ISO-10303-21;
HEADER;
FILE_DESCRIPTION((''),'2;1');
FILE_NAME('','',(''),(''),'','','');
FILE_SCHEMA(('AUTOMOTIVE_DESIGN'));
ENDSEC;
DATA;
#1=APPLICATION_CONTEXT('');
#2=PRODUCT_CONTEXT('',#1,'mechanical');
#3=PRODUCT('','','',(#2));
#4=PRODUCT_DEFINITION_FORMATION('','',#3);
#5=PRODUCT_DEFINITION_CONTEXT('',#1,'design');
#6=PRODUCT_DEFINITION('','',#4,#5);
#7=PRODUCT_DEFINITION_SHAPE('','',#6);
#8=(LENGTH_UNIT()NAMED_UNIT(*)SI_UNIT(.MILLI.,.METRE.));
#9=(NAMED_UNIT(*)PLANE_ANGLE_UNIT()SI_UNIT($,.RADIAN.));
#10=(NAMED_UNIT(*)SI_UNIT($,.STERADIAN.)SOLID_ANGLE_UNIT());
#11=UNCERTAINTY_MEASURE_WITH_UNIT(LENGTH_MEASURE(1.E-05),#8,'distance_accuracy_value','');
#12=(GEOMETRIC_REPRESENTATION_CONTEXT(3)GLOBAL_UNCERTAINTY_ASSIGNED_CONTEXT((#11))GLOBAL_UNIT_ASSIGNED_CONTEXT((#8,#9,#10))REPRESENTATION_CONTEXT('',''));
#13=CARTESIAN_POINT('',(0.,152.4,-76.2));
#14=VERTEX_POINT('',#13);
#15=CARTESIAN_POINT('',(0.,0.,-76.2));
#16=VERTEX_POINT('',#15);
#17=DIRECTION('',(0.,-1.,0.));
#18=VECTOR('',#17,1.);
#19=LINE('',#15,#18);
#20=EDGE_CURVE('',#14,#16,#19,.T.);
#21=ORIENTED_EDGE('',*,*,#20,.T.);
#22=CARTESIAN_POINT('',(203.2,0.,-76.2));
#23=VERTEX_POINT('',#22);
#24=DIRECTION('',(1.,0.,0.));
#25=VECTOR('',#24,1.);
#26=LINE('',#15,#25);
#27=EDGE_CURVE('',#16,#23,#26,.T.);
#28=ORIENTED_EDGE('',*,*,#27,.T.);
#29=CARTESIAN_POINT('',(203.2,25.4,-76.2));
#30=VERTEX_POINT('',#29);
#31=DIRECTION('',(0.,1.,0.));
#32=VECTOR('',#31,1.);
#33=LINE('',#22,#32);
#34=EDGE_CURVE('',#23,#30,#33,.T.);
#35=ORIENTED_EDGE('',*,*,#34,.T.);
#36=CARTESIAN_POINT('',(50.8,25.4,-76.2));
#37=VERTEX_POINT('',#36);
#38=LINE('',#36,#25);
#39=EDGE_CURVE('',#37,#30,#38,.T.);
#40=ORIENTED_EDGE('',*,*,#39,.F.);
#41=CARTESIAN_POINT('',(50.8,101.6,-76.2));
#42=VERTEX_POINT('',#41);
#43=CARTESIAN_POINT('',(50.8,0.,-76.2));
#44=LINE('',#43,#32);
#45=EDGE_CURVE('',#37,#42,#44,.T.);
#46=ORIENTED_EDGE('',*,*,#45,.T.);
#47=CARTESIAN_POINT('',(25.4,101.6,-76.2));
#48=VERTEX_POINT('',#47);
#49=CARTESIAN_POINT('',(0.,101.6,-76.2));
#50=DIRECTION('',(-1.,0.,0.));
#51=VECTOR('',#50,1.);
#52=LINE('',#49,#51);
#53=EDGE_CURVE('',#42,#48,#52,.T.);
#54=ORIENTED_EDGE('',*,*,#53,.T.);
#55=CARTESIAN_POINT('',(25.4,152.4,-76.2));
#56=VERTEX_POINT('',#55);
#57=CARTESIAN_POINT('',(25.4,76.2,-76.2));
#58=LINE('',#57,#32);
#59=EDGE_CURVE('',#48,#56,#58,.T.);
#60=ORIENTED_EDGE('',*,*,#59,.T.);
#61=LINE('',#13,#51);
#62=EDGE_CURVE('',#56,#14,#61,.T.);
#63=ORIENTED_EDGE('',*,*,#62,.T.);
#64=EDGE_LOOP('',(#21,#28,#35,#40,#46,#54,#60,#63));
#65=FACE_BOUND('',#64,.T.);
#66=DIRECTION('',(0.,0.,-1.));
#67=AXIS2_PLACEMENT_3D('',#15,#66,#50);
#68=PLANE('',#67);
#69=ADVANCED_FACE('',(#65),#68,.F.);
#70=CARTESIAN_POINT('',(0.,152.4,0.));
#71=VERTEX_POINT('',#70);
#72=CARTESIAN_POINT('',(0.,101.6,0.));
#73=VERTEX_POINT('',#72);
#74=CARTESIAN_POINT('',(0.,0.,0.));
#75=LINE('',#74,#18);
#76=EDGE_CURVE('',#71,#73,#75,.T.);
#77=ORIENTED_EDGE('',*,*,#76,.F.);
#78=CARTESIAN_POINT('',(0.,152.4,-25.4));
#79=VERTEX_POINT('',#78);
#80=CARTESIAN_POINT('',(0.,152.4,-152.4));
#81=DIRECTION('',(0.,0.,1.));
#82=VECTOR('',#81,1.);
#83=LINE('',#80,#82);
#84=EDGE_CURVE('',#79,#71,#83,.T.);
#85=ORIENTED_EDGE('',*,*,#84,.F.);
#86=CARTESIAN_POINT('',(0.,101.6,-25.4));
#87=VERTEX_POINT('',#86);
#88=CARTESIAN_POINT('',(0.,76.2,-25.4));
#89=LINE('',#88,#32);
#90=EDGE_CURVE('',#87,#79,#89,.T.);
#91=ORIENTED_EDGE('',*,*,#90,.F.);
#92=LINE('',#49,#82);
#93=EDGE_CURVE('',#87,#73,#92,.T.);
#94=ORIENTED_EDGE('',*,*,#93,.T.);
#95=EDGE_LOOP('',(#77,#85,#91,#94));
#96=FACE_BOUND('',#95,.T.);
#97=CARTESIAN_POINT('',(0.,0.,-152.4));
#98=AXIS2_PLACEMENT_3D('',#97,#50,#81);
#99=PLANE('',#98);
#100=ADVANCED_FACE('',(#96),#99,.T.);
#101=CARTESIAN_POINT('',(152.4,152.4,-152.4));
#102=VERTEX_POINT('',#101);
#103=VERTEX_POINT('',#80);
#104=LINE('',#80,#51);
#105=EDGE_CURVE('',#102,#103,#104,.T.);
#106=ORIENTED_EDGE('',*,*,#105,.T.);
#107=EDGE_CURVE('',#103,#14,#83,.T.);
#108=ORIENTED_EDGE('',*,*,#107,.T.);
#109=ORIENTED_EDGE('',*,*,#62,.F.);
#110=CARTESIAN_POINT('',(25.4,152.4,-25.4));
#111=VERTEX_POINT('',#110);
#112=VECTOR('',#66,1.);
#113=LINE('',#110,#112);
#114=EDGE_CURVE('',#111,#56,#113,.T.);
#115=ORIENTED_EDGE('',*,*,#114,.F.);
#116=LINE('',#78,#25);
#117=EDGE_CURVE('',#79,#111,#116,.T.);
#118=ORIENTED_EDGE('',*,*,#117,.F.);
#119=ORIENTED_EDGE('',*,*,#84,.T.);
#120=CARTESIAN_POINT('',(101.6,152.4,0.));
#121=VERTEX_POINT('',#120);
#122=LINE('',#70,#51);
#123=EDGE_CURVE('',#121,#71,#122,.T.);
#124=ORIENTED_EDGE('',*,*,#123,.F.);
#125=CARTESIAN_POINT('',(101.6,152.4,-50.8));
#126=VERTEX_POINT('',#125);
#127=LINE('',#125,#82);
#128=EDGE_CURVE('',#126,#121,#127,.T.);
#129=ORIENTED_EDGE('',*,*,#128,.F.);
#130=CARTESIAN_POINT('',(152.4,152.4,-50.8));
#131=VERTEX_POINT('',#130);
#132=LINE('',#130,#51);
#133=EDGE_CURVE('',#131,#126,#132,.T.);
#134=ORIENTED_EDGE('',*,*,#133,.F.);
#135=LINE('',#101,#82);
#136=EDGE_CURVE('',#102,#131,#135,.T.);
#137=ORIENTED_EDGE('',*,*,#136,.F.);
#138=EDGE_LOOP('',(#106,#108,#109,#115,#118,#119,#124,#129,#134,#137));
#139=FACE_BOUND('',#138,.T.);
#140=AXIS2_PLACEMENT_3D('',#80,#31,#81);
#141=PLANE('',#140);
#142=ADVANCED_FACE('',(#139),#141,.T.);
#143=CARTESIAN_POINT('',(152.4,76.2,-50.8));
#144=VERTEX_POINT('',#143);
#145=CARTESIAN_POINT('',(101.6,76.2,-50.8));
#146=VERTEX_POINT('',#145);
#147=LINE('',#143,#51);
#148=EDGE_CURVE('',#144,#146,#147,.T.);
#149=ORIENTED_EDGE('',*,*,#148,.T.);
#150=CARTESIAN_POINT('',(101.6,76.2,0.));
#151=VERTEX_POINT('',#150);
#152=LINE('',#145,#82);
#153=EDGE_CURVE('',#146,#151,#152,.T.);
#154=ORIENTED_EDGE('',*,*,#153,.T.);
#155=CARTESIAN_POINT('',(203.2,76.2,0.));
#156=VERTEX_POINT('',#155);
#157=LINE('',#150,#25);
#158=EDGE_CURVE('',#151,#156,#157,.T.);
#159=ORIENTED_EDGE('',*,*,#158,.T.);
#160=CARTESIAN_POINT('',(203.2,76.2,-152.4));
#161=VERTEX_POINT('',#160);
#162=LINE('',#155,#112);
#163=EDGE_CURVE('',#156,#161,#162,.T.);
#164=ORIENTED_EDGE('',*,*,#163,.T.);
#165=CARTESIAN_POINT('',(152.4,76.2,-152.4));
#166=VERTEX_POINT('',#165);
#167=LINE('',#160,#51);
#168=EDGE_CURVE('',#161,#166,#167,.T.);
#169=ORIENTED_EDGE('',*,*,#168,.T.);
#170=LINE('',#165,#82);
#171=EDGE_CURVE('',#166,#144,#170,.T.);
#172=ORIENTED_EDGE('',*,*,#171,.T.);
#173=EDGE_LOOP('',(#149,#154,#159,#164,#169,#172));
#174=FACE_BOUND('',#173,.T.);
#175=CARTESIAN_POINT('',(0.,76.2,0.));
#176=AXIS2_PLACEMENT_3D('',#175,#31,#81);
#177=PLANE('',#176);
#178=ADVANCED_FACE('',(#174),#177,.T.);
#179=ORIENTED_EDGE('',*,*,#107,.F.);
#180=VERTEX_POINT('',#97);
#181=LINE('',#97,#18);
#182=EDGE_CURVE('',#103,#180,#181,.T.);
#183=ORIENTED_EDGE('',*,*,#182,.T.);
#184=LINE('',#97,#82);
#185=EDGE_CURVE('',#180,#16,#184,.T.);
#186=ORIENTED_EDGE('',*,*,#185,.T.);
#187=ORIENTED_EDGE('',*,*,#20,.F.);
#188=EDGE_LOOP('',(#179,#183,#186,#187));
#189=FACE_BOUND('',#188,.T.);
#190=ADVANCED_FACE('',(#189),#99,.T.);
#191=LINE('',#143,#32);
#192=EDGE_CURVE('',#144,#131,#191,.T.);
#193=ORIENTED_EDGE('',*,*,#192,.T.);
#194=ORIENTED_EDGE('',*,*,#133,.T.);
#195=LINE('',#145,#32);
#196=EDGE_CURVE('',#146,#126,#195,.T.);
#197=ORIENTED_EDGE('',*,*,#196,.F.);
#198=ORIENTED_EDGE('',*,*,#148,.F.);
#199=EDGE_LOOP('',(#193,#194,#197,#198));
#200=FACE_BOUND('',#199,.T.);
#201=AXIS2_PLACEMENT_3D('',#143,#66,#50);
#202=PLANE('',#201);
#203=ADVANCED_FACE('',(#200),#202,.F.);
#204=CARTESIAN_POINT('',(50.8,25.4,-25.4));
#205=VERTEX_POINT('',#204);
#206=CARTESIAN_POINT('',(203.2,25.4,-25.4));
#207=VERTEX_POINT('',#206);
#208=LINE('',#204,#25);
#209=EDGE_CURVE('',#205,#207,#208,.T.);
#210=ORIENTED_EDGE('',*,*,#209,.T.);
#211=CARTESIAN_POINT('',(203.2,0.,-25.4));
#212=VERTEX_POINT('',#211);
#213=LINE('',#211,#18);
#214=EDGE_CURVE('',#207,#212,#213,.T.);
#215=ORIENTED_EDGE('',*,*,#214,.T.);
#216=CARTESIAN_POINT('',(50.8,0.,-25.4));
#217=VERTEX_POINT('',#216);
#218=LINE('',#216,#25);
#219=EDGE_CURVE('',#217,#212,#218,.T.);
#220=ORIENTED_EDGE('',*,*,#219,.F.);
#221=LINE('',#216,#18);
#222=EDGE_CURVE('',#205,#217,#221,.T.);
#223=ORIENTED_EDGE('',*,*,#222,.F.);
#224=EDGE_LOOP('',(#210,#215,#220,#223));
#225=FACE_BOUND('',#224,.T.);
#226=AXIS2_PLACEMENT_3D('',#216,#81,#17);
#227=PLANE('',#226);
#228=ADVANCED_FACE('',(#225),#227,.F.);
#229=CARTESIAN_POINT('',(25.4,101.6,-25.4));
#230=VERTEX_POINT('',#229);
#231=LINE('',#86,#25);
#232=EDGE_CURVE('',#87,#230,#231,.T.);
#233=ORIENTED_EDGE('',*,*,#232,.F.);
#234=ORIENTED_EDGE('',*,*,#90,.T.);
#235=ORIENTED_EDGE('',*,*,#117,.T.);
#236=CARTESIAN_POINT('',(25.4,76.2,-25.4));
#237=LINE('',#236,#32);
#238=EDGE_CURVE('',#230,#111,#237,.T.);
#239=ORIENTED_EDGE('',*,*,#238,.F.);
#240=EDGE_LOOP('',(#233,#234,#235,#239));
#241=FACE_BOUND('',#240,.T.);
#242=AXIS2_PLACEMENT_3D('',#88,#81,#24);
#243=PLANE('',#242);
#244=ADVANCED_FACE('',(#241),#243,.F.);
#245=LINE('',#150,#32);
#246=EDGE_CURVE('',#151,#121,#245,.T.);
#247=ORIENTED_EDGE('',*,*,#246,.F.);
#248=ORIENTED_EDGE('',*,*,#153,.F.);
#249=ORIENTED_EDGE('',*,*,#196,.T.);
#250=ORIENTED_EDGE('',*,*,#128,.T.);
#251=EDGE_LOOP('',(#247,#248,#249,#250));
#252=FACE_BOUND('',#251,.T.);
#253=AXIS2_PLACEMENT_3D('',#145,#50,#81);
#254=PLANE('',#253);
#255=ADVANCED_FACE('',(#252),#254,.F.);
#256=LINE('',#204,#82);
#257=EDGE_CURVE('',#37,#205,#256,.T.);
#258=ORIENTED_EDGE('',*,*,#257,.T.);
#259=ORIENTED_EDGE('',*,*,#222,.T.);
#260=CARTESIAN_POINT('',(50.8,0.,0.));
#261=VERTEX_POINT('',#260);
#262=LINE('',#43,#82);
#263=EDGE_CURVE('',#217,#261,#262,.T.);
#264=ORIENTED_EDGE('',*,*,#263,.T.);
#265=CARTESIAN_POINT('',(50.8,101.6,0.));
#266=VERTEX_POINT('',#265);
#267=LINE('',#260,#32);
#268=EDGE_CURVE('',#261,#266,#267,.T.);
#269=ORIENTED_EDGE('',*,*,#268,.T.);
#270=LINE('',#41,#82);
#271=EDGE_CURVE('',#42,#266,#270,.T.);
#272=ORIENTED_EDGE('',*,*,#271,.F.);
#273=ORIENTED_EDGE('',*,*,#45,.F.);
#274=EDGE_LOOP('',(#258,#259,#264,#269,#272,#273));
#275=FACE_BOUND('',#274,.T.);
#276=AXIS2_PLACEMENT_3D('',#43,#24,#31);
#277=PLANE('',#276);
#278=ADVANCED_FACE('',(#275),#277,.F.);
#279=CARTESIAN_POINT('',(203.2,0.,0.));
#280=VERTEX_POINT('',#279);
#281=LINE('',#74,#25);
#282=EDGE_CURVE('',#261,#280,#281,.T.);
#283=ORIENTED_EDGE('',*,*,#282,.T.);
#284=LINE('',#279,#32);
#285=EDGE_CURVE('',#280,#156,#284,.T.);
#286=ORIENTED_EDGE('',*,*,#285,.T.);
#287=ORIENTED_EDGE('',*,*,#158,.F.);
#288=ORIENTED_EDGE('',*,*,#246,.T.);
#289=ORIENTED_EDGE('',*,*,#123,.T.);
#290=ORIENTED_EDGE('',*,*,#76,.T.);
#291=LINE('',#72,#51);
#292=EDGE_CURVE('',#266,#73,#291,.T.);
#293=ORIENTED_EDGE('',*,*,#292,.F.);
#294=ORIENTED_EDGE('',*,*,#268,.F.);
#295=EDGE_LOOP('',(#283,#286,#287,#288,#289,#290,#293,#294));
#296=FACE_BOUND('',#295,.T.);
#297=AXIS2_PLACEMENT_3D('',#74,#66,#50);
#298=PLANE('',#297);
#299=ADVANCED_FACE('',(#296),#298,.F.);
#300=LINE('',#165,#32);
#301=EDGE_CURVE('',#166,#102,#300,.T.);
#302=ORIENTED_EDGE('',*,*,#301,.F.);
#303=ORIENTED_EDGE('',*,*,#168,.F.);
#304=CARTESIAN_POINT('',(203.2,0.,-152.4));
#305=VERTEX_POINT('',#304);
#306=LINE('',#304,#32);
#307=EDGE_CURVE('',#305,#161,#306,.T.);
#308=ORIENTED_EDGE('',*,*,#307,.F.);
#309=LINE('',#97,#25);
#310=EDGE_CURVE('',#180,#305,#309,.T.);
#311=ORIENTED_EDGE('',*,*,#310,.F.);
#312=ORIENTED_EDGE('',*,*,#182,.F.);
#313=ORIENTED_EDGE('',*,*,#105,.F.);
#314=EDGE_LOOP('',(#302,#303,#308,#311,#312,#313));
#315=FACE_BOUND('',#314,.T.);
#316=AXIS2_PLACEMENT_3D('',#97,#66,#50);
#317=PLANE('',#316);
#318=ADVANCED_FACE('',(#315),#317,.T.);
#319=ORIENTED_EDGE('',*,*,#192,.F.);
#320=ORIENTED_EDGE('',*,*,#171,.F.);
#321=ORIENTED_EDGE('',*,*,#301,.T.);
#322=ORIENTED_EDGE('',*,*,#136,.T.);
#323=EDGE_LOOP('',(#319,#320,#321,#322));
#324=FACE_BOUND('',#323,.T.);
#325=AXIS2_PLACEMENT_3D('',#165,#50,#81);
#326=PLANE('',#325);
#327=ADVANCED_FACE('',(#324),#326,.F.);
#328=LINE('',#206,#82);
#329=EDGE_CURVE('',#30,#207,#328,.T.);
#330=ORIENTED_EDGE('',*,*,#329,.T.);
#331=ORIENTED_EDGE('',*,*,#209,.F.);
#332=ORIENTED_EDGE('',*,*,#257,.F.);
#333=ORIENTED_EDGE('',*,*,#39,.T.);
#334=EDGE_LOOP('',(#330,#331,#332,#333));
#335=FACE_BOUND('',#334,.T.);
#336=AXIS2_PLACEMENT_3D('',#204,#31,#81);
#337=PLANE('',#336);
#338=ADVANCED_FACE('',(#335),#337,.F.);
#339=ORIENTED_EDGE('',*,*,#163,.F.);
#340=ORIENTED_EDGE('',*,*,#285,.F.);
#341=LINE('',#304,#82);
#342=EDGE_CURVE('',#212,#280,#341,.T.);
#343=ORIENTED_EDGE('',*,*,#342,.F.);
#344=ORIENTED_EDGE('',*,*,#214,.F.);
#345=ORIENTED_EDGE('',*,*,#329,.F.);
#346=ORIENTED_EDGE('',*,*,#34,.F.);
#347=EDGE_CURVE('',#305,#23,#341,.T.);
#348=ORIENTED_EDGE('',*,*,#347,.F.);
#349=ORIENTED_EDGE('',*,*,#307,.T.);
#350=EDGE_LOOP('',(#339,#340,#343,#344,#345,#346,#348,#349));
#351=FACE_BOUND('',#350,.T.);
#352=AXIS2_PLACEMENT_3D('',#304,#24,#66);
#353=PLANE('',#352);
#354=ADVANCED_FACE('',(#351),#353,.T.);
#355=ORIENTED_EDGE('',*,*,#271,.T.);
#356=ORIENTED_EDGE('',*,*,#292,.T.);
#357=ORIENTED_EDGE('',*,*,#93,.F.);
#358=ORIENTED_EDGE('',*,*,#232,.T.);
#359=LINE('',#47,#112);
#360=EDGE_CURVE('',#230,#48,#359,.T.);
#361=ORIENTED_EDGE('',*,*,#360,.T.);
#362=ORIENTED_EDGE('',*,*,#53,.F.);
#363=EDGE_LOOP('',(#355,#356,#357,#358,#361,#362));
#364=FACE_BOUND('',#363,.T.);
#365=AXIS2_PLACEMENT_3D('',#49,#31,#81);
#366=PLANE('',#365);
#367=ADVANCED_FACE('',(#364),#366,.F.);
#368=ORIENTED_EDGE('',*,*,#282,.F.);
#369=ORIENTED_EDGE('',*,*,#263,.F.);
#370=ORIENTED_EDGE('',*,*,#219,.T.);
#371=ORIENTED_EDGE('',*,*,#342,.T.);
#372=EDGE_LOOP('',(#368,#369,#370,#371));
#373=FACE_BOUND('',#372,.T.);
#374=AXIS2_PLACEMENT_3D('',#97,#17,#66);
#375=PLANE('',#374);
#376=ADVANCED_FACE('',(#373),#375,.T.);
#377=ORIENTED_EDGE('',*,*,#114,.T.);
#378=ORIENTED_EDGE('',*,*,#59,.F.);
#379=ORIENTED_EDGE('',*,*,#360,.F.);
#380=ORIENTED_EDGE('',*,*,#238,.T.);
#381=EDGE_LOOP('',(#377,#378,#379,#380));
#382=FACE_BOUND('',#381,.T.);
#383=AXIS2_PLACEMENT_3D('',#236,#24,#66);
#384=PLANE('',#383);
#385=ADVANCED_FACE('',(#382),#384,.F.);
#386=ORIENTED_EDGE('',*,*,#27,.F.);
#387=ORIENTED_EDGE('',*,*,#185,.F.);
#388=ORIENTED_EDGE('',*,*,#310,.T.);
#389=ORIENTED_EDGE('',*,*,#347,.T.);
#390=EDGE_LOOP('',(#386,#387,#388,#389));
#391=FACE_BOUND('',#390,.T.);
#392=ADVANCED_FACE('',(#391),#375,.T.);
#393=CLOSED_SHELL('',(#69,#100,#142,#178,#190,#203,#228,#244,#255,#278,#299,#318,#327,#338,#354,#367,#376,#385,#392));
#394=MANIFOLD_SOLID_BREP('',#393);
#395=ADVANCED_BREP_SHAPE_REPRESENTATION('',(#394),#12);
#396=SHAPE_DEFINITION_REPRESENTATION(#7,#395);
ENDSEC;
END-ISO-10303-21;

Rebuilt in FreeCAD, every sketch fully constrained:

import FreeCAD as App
import Part
import Sketcher
Q = App.Units.Quantity


def add_polygon(sketch, points):
    """Adds a closed chain of lines whose ends are joined by coincident constraints."""
    first, n = sketch.GeometryCount, len(points)
    for a, b in zip(points, points[1:] + points[:1]):
        sketch.addGeometry(Part.LineSegment(App.Vector(*a, 0), App.Vector(*b, 0)), False)
    for i in range(n):
        sketch.addConstraint(Sketcher.Constraint("Coincident", first + i, 2, first + (i + 1) % n, 1))

doc = App.newDocument("Part")
body = doc.addObject("PartDesign::Body", "Body")

sketch1 = body.newObject("Sketcher::SketchObject", "Sketch")
sketch1.AttachmentSupport = (doc.getObject("XY_Plane"), [""])
sketch1.MapMode = "FlatFace"
add_polygon(sketch1, [(0, 152.4), (0, 0), (203.2, 0), (203.2, 152.4)])
sketch1.addConstraint(Sketcher.Constraint("Vertical", 0))
sketch1.addConstraint(Sketcher.Constraint("Horizontal", 1))
sketch1.addConstraint(Sketcher.Constraint("Vertical", 2))
sketch1.addConstraint(Sketcher.Constraint("Horizontal", 3))
sketch1.addConstraint(Sketcher.Constraint("Coincident", 0, 2, -1, 1))
sketch1.addConstraint(Sketcher.Constraint("DistanceX", 1, 1, 1, 2, Q("8 in")))
sketch1.addConstraint(Sketcher.Constraint("DistanceY", 0, 2, 0, 1, Q("6 in")))
pad1 = body.newObject("PartDesign::Pad", "Pad")
pad1.Profile = sketch1
pad1.Length = Q("6 in")
pad1.Reversed = True

sketch2 = body.newObject("Sketcher::SketchObject", "Sketch001")
sketch2.AttachmentSupport = (doc.getObject("XY_Plane"), [""])
sketch2.MapMode = "FlatFace"
add_polygon(sketch2, [(0, 101.6), (0, 0), (50.8, 0), (50.8, 101.6)])
sketch2.addConstraint(Sketcher.Constraint("Vertical", 0))
sketch2.addConstraint(Sketcher.Constraint("Horizontal", 1))
sketch2.addConstraint(Sketcher.Constraint("Vertical", 2))
sketch2.addConstraint(Sketcher.Constraint("Horizontal", 3))
sketch2.addConstraint(Sketcher.Constraint("Coincident", 0, 2, -1, 1))
sketch2.addConstraint(Sketcher.Constraint("DistanceX", 1, 1, 1, 2, Q("2 in")))
sketch2.addConstraint(Sketcher.Constraint("DistanceY", 0, 2, 0, 1, Q("4 in")))
pocket1 = body.newObject("PartDesign::Pocket", "Pocket")
pocket1.Profile = sketch2
pocket1.Length = Q("3 in")

sketch3 = body.newObject("Sketcher::SketchObject", "Sketch002")
sketch3.AttachmentSupport = (doc.getObject("XZ_Plane"), [""])
sketch3.MapMode = "FlatFace"
sketch3.AttachmentOffset = App.Placement(App.Vector(0, 0, -6 * 25.4), App.Rotation())
add_polygon(sketch3, [(0, -76.2), (0, -25.4), (25.4, -25.4), (25.4, -76.2)])
sketch3.addConstraint(Sketcher.Constraint("Vertical", 0))
sketch3.addConstraint(Sketcher.Constraint("Horizontal", 1))
sketch3.addConstraint(Sketcher.Constraint("Vertical", 2))
sketch3.addConstraint(Sketcher.Constraint("Horizontal", 3))
sketch3.addConstraint(Sketcher.Constraint("PointOnObject", 0, 2, -2))
sketch3.addConstraint(Sketcher.Constraint("DistanceX", 1, 1, 1, 2, Q("1 in")))
sketch3.addConstraint(Sketcher.Constraint("DistanceY", 0, 1, 0, 2, Q("2 in")))
sketch3.addConstraint(Sketcher.Constraint("DistanceY", 0, 2, -1, 1, Q("1 in")))
pocket2 = body.newObject("PartDesign::Pocket", "Pocket001")
pocket2.Profile = sketch3
pocket2.Length = Q("3 in")
pocket2.Reversed = True

sketch4 = body.newObject("Sketcher::SketchObject", "Sketch003")
sketch4.AttachmentSupport = (doc.getObject("YZ_Plane"), [""])
sketch4.MapMode = "FlatFace"
sketch4.AttachmentOffset = App.Placement(App.Vector(0, 0, 8 * 25.4), App.Rotation())
add_polygon(sketch4, [(25.4, -25.4), (0, -25.4), (0, -76.2), (25.4, -76.2)])
sketch4.addConstraint(Sketcher.Constraint("Horizontal", 0))
sketch4.addConstraint(Sketcher.Constraint("Vertical", 1))
sketch4.addConstraint(Sketcher.Constraint("Horizontal", 2))
sketch4.addConstraint(Sketcher.Constraint("Vertical", 3))
sketch4.addConstraint(Sketcher.Constraint("PointOnObject", 0, 2, -2))
sketch4.addConstraint(Sketcher.Constraint("DistanceX", 0, 2, 0, 1, Q("1 in")))
sketch4.addConstraint(Sketcher.Constraint("DistanceY", 1, 2, 1, 1, Q("2 in")))
sketch4.addConstraint(Sketcher.Constraint("DistanceY", 0, 2, -1, 1, Q("1 in")))
pocket3 = body.newObject("PartDesign::Pocket", "Pocket002")
pocket3.Profile = sketch4
pocket3.Length = Q("6 in")

sketch5 = body.newObject("Sketcher::SketchObject", "Sketch004")
sketch5.AttachmentSupport = (doc.getObject("XZ_Plane"), [""])
sketch5.MapMode = "FlatFace"
sketch5.AttachmentOffset = App.Placement(App.Vector(0, 0, -6 * 25.4), App.Rotation())
add_polygon(sketch5, [(152.4, -152.4), (152.4, -50.8), (101.6, -50.8), (101.6, 0), (203.2, 0), (203.2, -152.4)])
sketch5.addConstraint(Sketcher.Constraint("Vertical", 0))
sketch5.addConstraint(Sketcher.Constraint("Horizontal", 1))
sketch5.addConstraint(Sketcher.Constraint("Vertical", 2))
sketch5.addConstraint(Sketcher.Constraint("Horizontal", 3))
sketch5.addConstraint(Sketcher.Constraint("Vertical", 4))
sketch5.addConstraint(Sketcher.Constraint("Horizontal", 5))
sketch5.addConstraint(Sketcher.Constraint("PointOnObject", 2, 2, -1))
sketch5.addConstraint(Sketcher.Constraint("Equal", 1, 5))
sketch5.addConstraint(Sketcher.Constraint("Equal", 3, 0))
sketch5.addConstraint(Sketcher.Constraint("Equal", 5, 2))
sketch5.addConstraint(Sketcher.Constraint("DistanceX", 1, 2, 1, 1, Q("2 in")))
sketch5.addConstraint(Sketcher.Constraint("DistanceX", -1, 1, 0, 2, Q("6 in")))
pocket4 = body.newObject("PartDesign::Pocket", "Pocket003")
pocket4.Profile = sketch5
pocket4.Length = Q("3 in")
pocket4.Reversed = True

doc.recompute()
